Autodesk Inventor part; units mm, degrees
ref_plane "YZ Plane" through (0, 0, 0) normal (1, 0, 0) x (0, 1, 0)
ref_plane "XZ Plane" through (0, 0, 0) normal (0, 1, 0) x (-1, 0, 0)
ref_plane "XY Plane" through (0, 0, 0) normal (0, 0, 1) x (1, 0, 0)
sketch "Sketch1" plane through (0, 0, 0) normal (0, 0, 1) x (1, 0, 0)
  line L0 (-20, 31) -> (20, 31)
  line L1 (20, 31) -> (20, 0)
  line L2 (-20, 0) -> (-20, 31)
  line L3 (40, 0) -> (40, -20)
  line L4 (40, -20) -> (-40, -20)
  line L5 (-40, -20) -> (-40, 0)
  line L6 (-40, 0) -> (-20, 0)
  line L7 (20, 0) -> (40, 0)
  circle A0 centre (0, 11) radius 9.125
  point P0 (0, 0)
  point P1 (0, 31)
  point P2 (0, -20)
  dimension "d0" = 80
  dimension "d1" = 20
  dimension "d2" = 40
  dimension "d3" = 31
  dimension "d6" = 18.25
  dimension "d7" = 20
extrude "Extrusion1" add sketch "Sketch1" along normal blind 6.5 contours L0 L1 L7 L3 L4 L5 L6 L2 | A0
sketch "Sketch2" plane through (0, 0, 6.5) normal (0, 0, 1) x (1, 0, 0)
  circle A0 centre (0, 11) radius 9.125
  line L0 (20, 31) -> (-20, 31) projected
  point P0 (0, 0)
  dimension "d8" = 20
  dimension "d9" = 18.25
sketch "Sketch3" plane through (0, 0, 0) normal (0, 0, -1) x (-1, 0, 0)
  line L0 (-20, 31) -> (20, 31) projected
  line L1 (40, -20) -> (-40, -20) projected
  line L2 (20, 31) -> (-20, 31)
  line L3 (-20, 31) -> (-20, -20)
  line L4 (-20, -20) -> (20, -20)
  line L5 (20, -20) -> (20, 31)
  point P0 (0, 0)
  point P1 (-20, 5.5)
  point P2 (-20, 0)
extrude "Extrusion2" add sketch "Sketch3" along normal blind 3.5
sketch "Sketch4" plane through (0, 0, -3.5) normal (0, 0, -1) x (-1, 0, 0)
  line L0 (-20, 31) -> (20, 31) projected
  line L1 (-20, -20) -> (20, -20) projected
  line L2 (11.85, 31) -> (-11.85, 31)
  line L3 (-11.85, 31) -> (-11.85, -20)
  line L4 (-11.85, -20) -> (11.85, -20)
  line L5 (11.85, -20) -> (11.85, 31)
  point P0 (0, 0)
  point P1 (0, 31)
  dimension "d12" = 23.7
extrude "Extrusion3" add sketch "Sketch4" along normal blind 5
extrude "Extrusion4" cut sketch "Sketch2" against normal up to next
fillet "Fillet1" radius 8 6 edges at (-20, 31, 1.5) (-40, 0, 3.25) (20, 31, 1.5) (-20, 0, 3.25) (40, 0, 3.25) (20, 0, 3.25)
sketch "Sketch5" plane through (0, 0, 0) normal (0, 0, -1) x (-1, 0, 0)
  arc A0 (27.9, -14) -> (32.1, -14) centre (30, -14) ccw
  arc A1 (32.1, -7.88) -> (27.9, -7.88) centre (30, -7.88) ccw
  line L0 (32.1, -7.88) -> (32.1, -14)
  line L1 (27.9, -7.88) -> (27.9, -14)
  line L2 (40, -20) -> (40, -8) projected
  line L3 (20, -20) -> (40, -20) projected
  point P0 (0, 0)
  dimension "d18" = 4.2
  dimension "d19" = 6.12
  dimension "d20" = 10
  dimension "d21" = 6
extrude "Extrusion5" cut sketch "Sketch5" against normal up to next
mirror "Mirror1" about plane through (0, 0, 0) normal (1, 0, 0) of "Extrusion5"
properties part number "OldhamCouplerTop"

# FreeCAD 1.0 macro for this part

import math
import FreeCAD as App
import Part
import Sketcher
from FreeCAD import Vector


def edges_at(feature, points):
    """Names of the edges that pass closest to the given points."""
    edges = feature.Shape.Edges
    near = lambda p: min(range(len(edges)), key=lambda i: edges[i].distToShape(Part.Vertex(*p))[0])
    return sorted({f"Edge{near(p) + 1}" for p in points})

doc = App.newDocument("Part")
params = doc.addObject("Spreadsheet::Sheet", "Params")
for row, (alias, value) in enumerate([
    ("sketch1_width", "40 mm"),
    ("sketch1_width2", "20 mm"),
    ("sketch1_height", "31 mm"),
    ("pad1_length", "6.5 mm"),
    ("sketch2_width", "40 mm"),
    ("sketch2_height", "51 mm"),
    ("pad2_length", "3.5 mm"),
    ("sketch3_width", "23.7 mm"),
    ("sketch3_height", "51 mm"),
    ("pad3_length", "5 mm"),
    ("sketch4_diameter", "18.25 mm"),
    ("fillet_radius", "8 mm"),
    ("sketch5_radius", "2.1 mm"),
    ("sketch5_height", "6.12 mm"),
], start=1):
    params.set(f"A{row}", alias)
    params.set(f"B{row}", "=" + value)
    params.setAlias(f"B{row}", alias)

body = doc.addObject("PartDesign::Body", "Body")

# Sketch on XY plane
sketch1 = body.newObject("Sketcher::SketchObject", "Sketch")
sketch1.AttachmentSupport = (doc.getObject("XY_Plane"), [""])
sketch1.MapMode = "FlatFace"
sketch1.addGeometry([
    Part.LineSegment(Vector(20, 31, 0), Vector(-20, 31, 0)),  # 0
    Part.LineSegment(Vector(-20, 31, 0), Vector(-20, 0, 0)),  # 1
    Part.LineSegment(Vector(-20, 0, 0), Vector(-40, 0, 0)),  # 2
    Part.LineSegment(Vector(-40, 0, 0), Vector(-40, -20, 0)),  # 3
    Part.LineSegment(Vector(-40, -20, 0), Vector(40, -20, 0)),  # 4
    Part.LineSegment(Vector(40, -20, 0), Vector(40, 0, 0)),  # 5
    Part.LineSegment(Vector(40, 0, 0), Vector(20, 0, 0)),  # 6
    Part.LineSegment(Vector(20, 0, 0), Vector(20, 31, 0)),  # 7
], False)
sketch1.addConstraint([
    Sketcher.Constraint("Coincident", 0, 2, 1, 1),
    Sketcher.Constraint("Coincident", 1, 2, 2, 1),
    Sketcher.Constraint("Coincident", 2, 2, 3, 1),
    Sketcher.Constraint("Coincident", 3, 2, 4, 1),
    Sketcher.Constraint("Coincident", 4, 2, 5, 1),
    Sketcher.Constraint("Coincident", 5, 2, 6, 1),
    Sketcher.Constraint("Coincident", 6, 2, 7, 1),
    Sketcher.Constraint("Coincident", 7, 2, 0, 1),
    Sketcher.Constraint("Horizontal", 0),
    Sketcher.Constraint("Vertical", 1),
    Sketcher.Constraint("Horizontal", 2),
    Sketcher.Constraint("Vertical", 3),
    Sketcher.Constraint("Horizontal", 4),
    Sketcher.Constraint("Vertical", 5),
    Sketcher.Constraint("Horizontal", 6),
    Sketcher.Constraint("Vertical", 7),
    Sketcher.Constraint("Symmetric", 2, 2, 5, 2, -1, 1),
    Sketcher.Constraint("Symmetric", 1, 2, 6, 2, -2),
    Sketcher.Constraint("Equal", 6, 3),
    Sketcher.Constraint("DistanceX", 0, 2, 0, 1, 40.0),
    Sketcher.Constraint("DistanceX", 2, 2, 2, 1, 20.0),
    Sketcher.Constraint("DistanceY", 1, 2, 1, 1, 31.0),
])
sketch1.setExpression("Constraints[19]", "Params.sketch1_width")
sketch1.setExpression("Constraints[20]", "Params.sketch1_width2")
sketch1.setExpression("Constraints[21]", "Params.sketch1_height")
pad1 = body.newObject("PartDesign::Pad", "Pad")
pad1.Profile = sketch1
pad1.setExpression("Length", "Params.pad1_length")

# Sketch on XY plane
sketch2 = body.newObject("Sketcher::SketchObject", "Sketch001")
sketch2.AttachmentSupport = (doc.getObject("XY_Plane"), [""])
sketch2.MapMode = "FlatFace"
sketch2.addGeometry([
    Part.LineSegment(Vector(-20, 31, 0), Vector(20, 31, 0)),
    Part.LineSegment(Vector(20, 31, 0), Vector(20, -20, 0)),
    Part.LineSegment(Vector(20, -20, 0), Vector(-20, -20, 0)),
    Part.LineSegment(Vector(-20, -20, 0), Vector(-20, 31, 0)),
], False)
sketch2.addConstraint([
    Sketcher.Constraint("Coincident", 0, 2, 1, 1),
    Sketcher.Constraint("Coincident", 1, 2, 2, 1),
    Sketcher.Constraint("Coincident", 2, 2, 3, 1),
    Sketcher.Constraint("Coincident", 3, 2, 0, 1),
    Sketcher.Constraint("Horizontal", 0),
    Sketcher.Constraint("Vertical", 1),
    Sketcher.Constraint("Horizontal", 2),
    Sketcher.Constraint("Vertical", 3),
    Sketcher.Constraint("DistanceX", 0, 1, 0, 2, 40.0),
    Sketcher.Constraint("DistanceY", 1, 2, 1, 1, 51.0),
    Sketcher.Constraint("DistanceX", -1, 1, 0, 2, 20.0),
    Sketcher.Constraint("DistanceY", -1, 1, 0, 2, 31.0),
])
sketch2.setExpression("Constraints[8]", "Params.sketch2_width")
sketch2.setExpression("Constraints[9]", "Params.sketch2_height")
pad2 = body.newObject("PartDesign::Pad", "Pad001")
pad2.Profile = sketch2
pad2.setExpression("Length", "Params.pad2_length")
pad2.Reversed = True

# Sketch on XY plane
sketch3 = body.newObject("Sketcher::SketchObject", "Sketch002")
sketch3.AttachmentSupport = (doc.getObject("XY_Plane"), [""])
sketch3.MapMode = "FlatFace"
sketch3.AttachmentOffset = App.Placement(Vector(0, 0, -3.5), App.Rotation())
sketch3.addGeometry([
    Part.LineSegment(Vector(-12, 31, 0), Vector(12, 31, 0)),
    Part.LineSegment(Vector(12, 31, 0), Vector(12, -20, 0)),
    Part.LineSegment(Vector(12, -20, 0), Vector(-12, -20, 0)),
    Part.LineSegment(Vector(-12, -20, 0), Vector(-12, 31, 0)),
], False)
sketch3.addConstraint([
    Sketcher.Constraint("Coincident", 0, 2, 1, 1),
    Sketcher.Constraint("Coincident", 1, 2, 2, 1),
    Sketcher.Constraint("Coincident", 2, 2, 3, 1),
    Sketcher.Constraint("Coincident", 3, 2, 0, 1),
    Sketcher.Constraint("Horizontal", 0),
    Sketcher.Constraint("Vertical", 1),
    Sketcher.Constraint("Horizontal", 2),
    Sketcher.Constraint("Vertical", 3),
    Sketcher.Constraint("DistanceX", 0, 1, 0, 2, 23.7),
    Sketcher.Constraint("DistanceY", 1, 2, 1, 1, 51.0),
    Sketcher.Constraint("DistanceY", -1, 1, 0, 2, 31.0),
    Sketcher.Constraint("DistanceX", -1, 1, 0, 2, 11.85),
])
sketch3.setExpression("Constraints[8]", "Params.sketch3_width")
sketch3.setExpression("Constraints[9]", "Params.sketch3_height")
pad3 = body.newObject("PartDesign::Pad", "Pad002")
pad3.Profile = sketch3
pad3.setExpression("Length", "Params.pad3_length")
pad3.Reversed = True

# Sketch on XY plane
sketch4 = body.newObject("Sketcher::SketchObject", "Sketch003")
sketch4.AttachmentSupport = (doc.getObject("XY_Plane"), [""])
sketch4.MapMode = "FlatFace"
sketch4.AttachmentOffset = App.Placement(Vector(0, 0, 6.5), App.Rotation())
sketch4.addGeometry(Part.Circle(Vector(0, 11, 0), Vector(0, 0, 1), 9), False)
sketch4.addConstraint([
    Sketcher.Constraint("PointOnObject", 0, 3, -2),
    Sketcher.Constraint("Diameter", 0, 18.25),
    Sketcher.Constraint("DistanceY", -1, 1, 0, 3, 11.0),
])
sketch4.setExpression("Constraints[1]", "Params.sketch4_diameter")
pocket1 = body.newObject("PartDesign::Pocket", "Pocket")
pocket1.Profile = sketch4
pocket1.Type = "UpToFirst"
doc.recompute()

fillet = body.newObject("PartDesign::Fillet", "Fillet")
fillet.Base = (pocket1, edges_at(pocket1, [
    (-20, 31, 1.5),
    (-40, 0, 3.25),
    (20, 31, 1.5),
    (-20, 0, 3.25),
    (40, 0, 3.25),
    (20, 0, 3.25),
]))
fillet.setExpression("Radius", "Params.fillet_radius")

# Sketch on XY plane
sketch5 = body.newObject("Sketcher::SketchObject", "Sketch004")
sketch5.AttachmentSupport = (doc.getObject("XY_Plane"), [""])
sketch5.MapMode = "FlatFace"
sketch5.addGeometry([
    Part.LineSegment(Vector(-27.9, -7.9, 0), Vector(-27.9, -14, 0)),
    Part.ArcOfCircle(Part.Circle(Vector(-30, -14, 0), Vector(0, 0, 1), 2.1), math.radians(180), math.radians(360)),
    Part.LineSegment(Vector(-32.1, -14, 0), Vector(-32.1, -7.9, 0)),
    Part.ArcOfCircle(Part.Circle(Vector(-30, -7.9, 0), Vector(0, 0, 1), 2.1), math.radians(0), math.radians(180)),
], False)
sketch5.addConstraint([
    Sketcher.Constraint("Tangent", 0, 2, 1, 2),
    Sketcher.Constraint("Tangent", 1, 1, 2, 1),
    Sketcher.Constraint("Tangent", 2, 2, 3, 2),
    Sketcher.Constraint("Tangent", 3, 1, 0, 1),
    Sketcher.Constraint("Vertical", 0),
    Sketcher.Constraint("Vertical", 2),
    Sketcher.Constraint("Radius", 1, 2.1),
    Sketcher.Constraint("DistanceY", 0, 2, 0, 1, 6.12),
    Sketcher.Constraint("DistanceX", 1, 3, -1, 1, 30.0),
    Sketcher.Constraint("DistanceY", 1, 3, -1, 1, 14.0),
])
sketch5.setExpression("Constraints[6]", "Params.sketch5_radius")
sketch5.setExpression("Constraints[7]", "Params.sketch5_height")
pocket2 = body.newObject("PartDesign::Pocket", "Pocket001")
pocket2.Profile = sketch5
pocket2.Type = "UpToFirst"
pocket2.Reversed = True
doc.recompute()

mirrored = body.newObject("PartDesign::Mirrored", "Mirrored")
mirrored.Originals = [pocket2]
mirrored.MirrorPlane = (doc.getObject("YZ_Plane"), [""])
body.Tip = mirrored

doc.recompute()
